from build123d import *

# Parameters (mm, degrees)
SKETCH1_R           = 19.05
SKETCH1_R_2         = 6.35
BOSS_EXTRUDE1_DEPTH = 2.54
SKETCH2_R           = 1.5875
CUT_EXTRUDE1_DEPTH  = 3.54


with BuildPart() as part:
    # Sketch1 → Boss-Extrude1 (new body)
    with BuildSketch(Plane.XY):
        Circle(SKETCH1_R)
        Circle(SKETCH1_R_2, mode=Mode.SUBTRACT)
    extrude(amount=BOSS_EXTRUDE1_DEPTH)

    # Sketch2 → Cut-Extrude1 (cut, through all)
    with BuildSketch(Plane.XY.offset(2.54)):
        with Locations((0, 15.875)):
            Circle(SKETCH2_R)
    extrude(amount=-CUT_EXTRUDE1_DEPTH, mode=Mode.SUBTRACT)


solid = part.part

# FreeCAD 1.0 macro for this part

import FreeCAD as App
import Part
import Sketcher
from FreeCAD import Vector
Q = App.Units.Quantity

doc = App.newDocument("Part")
body = doc.addObject("PartDesign::Body", "Body")

# Sketch on XY plane
sketch1 = body.newObject("Sketcher::SketchObject", "Sketch")
sketch1.AttachmentSupport = (doc.getObject("XY_Plane"), [""])
sketch1.MapMode = "FlatFace"
sketch1.addGeometry([
    Part.Circle(Vector(0, 0, 0), Vector(0, 0, 1), 19),
    Part.Circle(Vector(0, 0, 0), Vector(0, 0, 1), 6),
], False)
sketch1.addConstraint([
    Sketcher.Constraint("Coincident", 0, 3, -1, 1),
    Sketcher.Constraint("Coincident", 1, 3, -1, 1),
    Sketcher.Constraint("Diameter", 0, Q("1.5 in")),
    Sketcher.Constraint("Diameter", 1, Q("0.5 in")),
])
pad1 = body.newObject("PartDesign::Pad", "Pad")
pad1.Profile = sketch1
pad1.Length = Q("0.1 in")

# Sketch on XY plane
sketch2 = body.newObject("Sketcher::SketchObject", "Sketch001")
sketch2.AttachmentSupport = (doc.getObject("XY_Plane"), [""])
sketch2.MapMode = "FlatFace"
sketch2.AttachmentOffset = App.Placement(Vector(0, 0, 0.1 * 25.4), App.Rotation())
sketch2.addGeometry(Part.Circle(Vector(0, 15.9, 0), Vector(0, 0, 1), 1.6), False)
sketch2.addConstraint([
    Sketcher.Constraint("PointOnObject", 0, 3, -2),
    Sketcher.Constraint("Diameter", 0, Q("0.125 in")),
    Sketcher.Constraint("DistanceY", -1, 1, 0, 3, Q("0.625 in")),
])
pocket1 = body.newObject("PartDesign::Pocket", "Pocket")
pocket1.Profile = sketch2
pocket1.Type = "ThroughAll"

doc.recompute()
